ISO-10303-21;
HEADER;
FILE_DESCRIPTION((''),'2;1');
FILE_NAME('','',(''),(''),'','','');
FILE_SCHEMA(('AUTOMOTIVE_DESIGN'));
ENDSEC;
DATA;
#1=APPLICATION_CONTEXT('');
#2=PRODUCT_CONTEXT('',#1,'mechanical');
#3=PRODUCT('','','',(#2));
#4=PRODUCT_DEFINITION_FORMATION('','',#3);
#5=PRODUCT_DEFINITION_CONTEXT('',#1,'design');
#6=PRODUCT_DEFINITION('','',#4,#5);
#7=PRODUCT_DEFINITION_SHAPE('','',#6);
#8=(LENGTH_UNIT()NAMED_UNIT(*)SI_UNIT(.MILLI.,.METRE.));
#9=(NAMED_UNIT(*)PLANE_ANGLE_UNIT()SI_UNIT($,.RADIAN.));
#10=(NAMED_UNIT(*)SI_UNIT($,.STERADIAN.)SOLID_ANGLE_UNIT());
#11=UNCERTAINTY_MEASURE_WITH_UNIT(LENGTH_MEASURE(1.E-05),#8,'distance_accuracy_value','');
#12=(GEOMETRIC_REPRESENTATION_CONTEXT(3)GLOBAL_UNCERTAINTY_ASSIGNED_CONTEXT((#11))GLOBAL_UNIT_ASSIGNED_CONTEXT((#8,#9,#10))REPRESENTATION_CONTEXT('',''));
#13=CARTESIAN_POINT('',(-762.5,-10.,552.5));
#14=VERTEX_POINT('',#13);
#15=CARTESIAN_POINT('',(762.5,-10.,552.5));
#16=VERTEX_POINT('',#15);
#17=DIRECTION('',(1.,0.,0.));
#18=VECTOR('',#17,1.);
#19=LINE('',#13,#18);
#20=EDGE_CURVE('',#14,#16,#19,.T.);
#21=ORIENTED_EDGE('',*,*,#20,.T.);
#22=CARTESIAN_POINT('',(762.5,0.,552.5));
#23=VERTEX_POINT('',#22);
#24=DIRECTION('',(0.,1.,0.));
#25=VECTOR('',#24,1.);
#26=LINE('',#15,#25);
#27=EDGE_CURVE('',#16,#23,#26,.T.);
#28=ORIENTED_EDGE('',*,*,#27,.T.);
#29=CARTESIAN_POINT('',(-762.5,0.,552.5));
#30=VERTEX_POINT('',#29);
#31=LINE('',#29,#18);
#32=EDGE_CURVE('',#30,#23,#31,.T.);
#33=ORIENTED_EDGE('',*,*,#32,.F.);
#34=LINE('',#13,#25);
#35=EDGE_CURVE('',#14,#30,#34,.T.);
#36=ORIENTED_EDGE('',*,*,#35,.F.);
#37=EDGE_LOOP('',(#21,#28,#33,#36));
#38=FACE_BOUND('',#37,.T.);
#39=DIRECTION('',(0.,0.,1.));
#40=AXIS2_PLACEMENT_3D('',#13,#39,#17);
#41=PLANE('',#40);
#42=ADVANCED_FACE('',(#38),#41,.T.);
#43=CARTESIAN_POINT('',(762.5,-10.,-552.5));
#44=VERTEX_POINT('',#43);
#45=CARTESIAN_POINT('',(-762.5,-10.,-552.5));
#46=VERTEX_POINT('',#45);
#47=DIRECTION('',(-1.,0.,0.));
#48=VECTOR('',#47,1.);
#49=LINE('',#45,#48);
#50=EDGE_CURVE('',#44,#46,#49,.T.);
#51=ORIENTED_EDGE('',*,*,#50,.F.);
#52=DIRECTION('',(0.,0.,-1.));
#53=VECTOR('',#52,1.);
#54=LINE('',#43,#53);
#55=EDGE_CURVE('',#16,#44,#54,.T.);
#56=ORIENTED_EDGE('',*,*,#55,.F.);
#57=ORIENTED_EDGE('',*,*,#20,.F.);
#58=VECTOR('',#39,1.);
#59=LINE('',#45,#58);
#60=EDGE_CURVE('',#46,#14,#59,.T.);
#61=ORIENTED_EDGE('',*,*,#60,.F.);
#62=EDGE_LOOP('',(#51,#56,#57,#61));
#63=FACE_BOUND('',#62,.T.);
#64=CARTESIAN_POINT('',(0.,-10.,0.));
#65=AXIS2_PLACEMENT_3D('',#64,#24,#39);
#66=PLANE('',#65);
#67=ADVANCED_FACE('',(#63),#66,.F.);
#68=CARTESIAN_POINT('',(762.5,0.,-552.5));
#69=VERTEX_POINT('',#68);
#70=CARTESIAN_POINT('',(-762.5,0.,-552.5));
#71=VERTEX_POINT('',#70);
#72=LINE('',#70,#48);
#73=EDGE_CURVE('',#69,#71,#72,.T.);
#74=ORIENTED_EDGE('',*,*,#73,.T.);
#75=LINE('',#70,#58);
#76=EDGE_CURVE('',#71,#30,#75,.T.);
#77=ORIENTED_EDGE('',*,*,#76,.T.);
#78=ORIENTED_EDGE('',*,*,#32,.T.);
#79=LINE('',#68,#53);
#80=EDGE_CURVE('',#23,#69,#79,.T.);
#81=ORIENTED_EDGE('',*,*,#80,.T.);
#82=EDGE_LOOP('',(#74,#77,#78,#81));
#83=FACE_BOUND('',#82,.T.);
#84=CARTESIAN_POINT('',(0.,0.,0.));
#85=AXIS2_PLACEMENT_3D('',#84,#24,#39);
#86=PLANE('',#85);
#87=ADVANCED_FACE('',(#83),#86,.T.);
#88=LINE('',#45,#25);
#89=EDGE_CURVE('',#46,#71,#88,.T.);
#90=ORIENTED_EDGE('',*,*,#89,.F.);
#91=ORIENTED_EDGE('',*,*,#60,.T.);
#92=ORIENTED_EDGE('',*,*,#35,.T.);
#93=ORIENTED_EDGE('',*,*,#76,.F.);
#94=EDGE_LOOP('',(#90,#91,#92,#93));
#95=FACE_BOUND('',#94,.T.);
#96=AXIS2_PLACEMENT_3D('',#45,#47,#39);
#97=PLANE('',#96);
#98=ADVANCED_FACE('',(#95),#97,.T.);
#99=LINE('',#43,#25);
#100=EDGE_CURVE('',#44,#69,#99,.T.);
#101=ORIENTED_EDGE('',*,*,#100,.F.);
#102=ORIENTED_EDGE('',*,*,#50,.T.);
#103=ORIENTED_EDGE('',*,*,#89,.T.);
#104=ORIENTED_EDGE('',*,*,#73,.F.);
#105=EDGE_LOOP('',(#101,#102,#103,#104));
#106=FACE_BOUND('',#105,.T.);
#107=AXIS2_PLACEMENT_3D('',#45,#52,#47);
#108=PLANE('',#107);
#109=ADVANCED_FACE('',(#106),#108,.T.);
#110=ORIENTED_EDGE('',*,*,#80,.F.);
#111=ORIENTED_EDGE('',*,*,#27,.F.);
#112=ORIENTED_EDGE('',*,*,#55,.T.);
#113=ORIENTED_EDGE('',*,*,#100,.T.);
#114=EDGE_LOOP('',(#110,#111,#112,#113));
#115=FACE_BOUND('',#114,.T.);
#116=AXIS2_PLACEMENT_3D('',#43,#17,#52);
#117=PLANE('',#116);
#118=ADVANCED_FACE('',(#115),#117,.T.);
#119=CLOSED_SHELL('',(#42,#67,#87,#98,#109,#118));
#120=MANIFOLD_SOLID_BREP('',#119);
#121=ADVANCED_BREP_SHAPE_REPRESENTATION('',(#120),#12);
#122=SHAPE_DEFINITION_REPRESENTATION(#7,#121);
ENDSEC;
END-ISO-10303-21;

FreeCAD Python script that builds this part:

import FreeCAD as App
import Part
import Sketcher
from FreeCAD import Vector

doc = App.newDocument("Part")
body = doc.addObject("PartDesign::Body", "Body")

# Sketch on XZ plane
sketch1 = doc.addObject("Sketcher::SketchObject", "Sketch")
body.addObject(sketch1)
sketch1.AttachmentSupport = (doc.XZ_Plane, [""])
sketch1.MapMode = "FlatFace"
sketch1.addGeometry([
    Part.LineSegment(Vector(-762.5, -552.5, 0), Vector(-762.5, 552.5, 0)),
    Part.LineSegment(Vector(-762.5, 552.5, 0), Vector(762.5, 552.5, 0)),
    Part.LineSegment(Vector(762.5, 552.5, 0), Vector(762.5, -552.5, 0)),
    Part.LineSegment(Vector(762.5, -552.5, 0), Vector(-762.5, -552.5, 0)),
], False)
sketch1.addConstraint([
    Sketcher.Constraint("Coincident", 0, 2, 1, 1),
    Sketcher.Constraint("Coincident", 1, 2, 2, 1),
    Sketcher.Constraint("Coincident", 2, 2, 3, 1),
    Sketcher.Constraint("Coincident", 3, 2, 0, 1),
    Sketcher.Constraint("Vertical", 0),
    Sketcher.Constraint("Horizontal", 1),
    Sketcher.Constraint("Vertical", 2),
    Sketcher.Constraint("Horizontal", 3),
    Sketcher.Constraint("Symmetric", 0, 2, 2, 2, -1, 1),
    Sketcher.Constraint("DistanceX", 1, 1, 1, 2, 1525.0),
    Sketcher.Constraint("DistanceY", 0, 1, 0, 2, 1105.0),
])
pad1 = doc.addObject("PartDesign::Pad", "Pad")
body.addObject(pad1)
pad1.Profile = sketch1
pad1.Length = 10

doc.recompute()
